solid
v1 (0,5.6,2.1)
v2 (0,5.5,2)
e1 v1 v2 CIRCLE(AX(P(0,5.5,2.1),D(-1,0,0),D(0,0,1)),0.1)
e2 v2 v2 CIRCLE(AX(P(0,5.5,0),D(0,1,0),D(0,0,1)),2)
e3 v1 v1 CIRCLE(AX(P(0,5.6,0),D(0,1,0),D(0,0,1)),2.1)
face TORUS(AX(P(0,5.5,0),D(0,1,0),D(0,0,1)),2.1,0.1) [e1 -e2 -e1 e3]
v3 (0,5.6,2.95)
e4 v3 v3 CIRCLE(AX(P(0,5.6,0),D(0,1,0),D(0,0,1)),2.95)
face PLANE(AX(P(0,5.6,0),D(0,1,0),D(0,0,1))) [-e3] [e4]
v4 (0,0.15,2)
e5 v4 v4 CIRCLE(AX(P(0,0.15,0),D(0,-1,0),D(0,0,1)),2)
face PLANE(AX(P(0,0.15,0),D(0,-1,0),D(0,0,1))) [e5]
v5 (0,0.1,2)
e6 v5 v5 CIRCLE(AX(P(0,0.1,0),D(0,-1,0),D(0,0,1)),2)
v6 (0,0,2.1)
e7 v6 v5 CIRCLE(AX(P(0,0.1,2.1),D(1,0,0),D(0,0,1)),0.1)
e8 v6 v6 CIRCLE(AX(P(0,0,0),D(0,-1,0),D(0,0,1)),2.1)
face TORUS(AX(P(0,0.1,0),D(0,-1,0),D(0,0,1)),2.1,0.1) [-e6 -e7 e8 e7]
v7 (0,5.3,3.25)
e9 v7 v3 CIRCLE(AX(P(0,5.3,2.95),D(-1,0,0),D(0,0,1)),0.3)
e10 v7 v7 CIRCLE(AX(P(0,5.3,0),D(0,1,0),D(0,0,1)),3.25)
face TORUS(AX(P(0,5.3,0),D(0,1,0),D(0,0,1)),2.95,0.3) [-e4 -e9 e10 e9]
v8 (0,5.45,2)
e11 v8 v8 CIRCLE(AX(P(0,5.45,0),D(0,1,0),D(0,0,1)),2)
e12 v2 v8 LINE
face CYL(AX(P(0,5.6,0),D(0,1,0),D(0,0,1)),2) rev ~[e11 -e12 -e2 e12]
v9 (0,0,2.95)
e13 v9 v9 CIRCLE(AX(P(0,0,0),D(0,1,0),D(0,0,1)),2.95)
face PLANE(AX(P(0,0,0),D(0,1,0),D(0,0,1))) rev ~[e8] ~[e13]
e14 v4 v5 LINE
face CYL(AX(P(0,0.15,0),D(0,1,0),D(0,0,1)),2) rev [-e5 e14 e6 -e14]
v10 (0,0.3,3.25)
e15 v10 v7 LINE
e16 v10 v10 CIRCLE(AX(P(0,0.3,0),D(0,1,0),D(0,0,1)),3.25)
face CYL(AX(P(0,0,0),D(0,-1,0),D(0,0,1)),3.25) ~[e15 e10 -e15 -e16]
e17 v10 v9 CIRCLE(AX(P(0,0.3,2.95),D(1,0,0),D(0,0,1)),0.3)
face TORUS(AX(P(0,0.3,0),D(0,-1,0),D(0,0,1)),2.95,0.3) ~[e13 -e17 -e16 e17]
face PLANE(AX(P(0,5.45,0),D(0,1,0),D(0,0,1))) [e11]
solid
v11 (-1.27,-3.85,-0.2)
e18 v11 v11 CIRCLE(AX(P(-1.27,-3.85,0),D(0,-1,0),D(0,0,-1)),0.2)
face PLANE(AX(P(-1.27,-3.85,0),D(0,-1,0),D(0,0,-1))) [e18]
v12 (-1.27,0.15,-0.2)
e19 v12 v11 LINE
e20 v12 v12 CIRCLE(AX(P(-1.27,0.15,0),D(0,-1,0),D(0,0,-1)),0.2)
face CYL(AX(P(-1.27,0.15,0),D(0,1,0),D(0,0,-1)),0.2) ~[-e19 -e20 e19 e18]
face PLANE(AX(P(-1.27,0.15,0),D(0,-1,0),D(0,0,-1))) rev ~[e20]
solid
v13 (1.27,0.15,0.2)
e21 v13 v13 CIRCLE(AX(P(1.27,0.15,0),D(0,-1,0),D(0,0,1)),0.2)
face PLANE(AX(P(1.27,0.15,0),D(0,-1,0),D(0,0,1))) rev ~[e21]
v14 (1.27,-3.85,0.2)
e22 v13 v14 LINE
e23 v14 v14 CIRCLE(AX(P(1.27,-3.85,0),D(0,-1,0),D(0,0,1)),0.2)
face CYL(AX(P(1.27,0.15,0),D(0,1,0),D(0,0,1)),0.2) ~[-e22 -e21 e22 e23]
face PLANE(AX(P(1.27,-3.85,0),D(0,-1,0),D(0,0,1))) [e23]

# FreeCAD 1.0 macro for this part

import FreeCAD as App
import Part
import Sketcher
from FreeCAD import Vector
Q = App.Units.Quantity


def edges_at(feature, points):
    """Names of the edges that pass closest to the given points."""
    edges = feature.Shape.Edges
    near = lambda p: min(range(len(edges)), key=lambda i: edges[i].distToShape(Part.Vertex(*p))[0])
    return sorted({f"Edge{near(p) + 1}" for p in points})

doc = App.newDocument("Part")
body = doc.addObject("PartDesign::Body", "Body")

# Sketch on XZ plane
sketch1 = body.newObject("Sketcher::SketchObject", "Sketch")
sketch1.AttachmentSupport = (doc.getObject("XZ_Plane"), [""])
sketch1.MapMode = "FlatFace"
sketch1.addGeometry(Part.Circle(Vector(0, 0, 0), Vector(0, 0, 1), 3.2), False)
sketch1.addConstraint(Sketcher.Constraint("Coincident", 0, 3, -1, 1))
sketch1.addConstraint(Sketcher.Constraint("Diameter", 0, Q("6.5 mm")))
pad1 = body.newObject("PartDesign::Pad", "Pad")
pad1.Profile = sketch1
pad1.Length = 5.6
pad1.Reversed = True

# Sketch on XZ plane
sketch2 = body.newObject("Sketcher::SketchObject", "Sketch001")
sketch2.AttachmentSupport = (doc.getObject("XZ_Plane"), [""])
sketch2.MapMode = "FlatFace"
sketch2.AttachmentOffset = App.Placement(Vector(0, 0, -5.6), App.Rotation())
sketch2.addGeometry(Part.Circle(Vector(0, 0, 0), Vector(0, 0, 1), 2), False)
sketch2.addConstraint(Sketcher.Constraint("Coincident", 0, 3, -1, 1))
sketch2.addConstraint(Sketcher.Constraint("Diameter", 0, Q("4 mm")))
pocket1 = body.newObject("PartDesign::Pocket", "Pocket")
pocket1.Profile = sketch2
pocket1.Length = 0.15
pocket1.Reversed = True

# Sketch on XZ plane
sketch3 = body.newObject("Sketcher::SketchObject", "Sketch002")
sketch3.AttachmentSupport = (doc.getObject("XZ_Plane"), [""])
sketch3.MapMode = "FlatFace"
sketch3.AttachmentOffset = App.Placement(Vector(0, 0, -0.15), App.Rotation())
sketch3.addGeometry(Part.Circle(Vector(0, 0, 0), Vector(0, 0, 1), 2), False)
sketch3.addConstraint(Sketcher.Constraint("Coincident", 0, 3, -1, 1))
sketch3.addConstraint(Sketcher.Constraint("Diameter", 0, Q("4 mm")))
pocket2 = body.newObject("PartDesign::Pocket", "Pocket001")
pocket2.Profile = sketch3
pocket2.Length = 0.15
pocket2.Reversed = True
doc.recompute()

fillet = body.newObject("PartDesign::Fillet", "Fillet")
fillet.Base = (pocket2, edges_at(pocket2, [(0, 0, -3.25), (0, 5.6, -3.25)]))
fillet.Radius = 0.3
doc.recompute()

fillet2 = body.newObject("PartDesign::Fillet", "Fillet001")
fillet2.Base = (fillet, edges_at(fillet, [(0, 0, -2), (0, 5.6, -2)]))
fillet2.Radius = 0.1
body2 = doc.addObject("PartDesign::Body", "Body001")

# Sketch on XZ plane
sketch4 = body2.newObject("Sketcher::SketchObject", "Sketch003")
sketch4.AttachmentSupport = (doc.getObject("XZ_Plane001"), [""])
sketch4.MapMode = "FlatFace"
sketch4.AttachmentOffset = App.Placement(Vector(0, 0, -0.15), App.Rotation())
sketch4.addGeometry(Part.Circle(Vector(-1.27, 0, 0), Vector(0, 0, 1), 0.2), False)
sketch4.addConstraint(Sketcher.Constraint("PointOnObject", 0, 3, -1))
sketch4.addConstraint(Sketcher.Constraint("Diameter", 0, Q("0.4 mm")))
sketch4.addConstraint(Sketcher.Constraint("DistanceX", 0, 3, -1, 1, Q("1.27 mm")))
pad2 = body2.newObject("PartDesign::Pad", "Pad001")
pad2.Profile = sketch4
pad2.Length = 4
body3 = doc.addObject("PartDesign::Body", "Body002")

# Sketch on XZ plane
sketch5 = body3.newObject("Sketcher::SketchObject", "Sketch004")
sketch5.AttachmentSupport = (doc.getObject("XZ_Plane002"), [""])
sketch5.MapMode = "FlatFace"
sketch5.AttachmentOffset = App.Placement(Vector(0, 0, -0.15), App.Rotation())
sketch5.addGeometry(Part.Circle(Vector(1.27, 0, 0), Vector(0, 0, 1), 0.2), False)
sketch5.addConstraint(Sketcher.Constraint("PointOnObject", 0, 3, -1))
sketch5.addConstraint(Sketcher.Constraint("Diameter", 0, Q("0.4 mm")))
sketch5.addConstraint(Sketcher.Constraint("DistanceX", -1, 1, 0, 3, Q("1.27 mm")))
pad3 = body3.newObject("PartDesign::Pad", "Pad002")
pad3.Profile = sketch5
pad3.Length = 4

doc.recompute()
